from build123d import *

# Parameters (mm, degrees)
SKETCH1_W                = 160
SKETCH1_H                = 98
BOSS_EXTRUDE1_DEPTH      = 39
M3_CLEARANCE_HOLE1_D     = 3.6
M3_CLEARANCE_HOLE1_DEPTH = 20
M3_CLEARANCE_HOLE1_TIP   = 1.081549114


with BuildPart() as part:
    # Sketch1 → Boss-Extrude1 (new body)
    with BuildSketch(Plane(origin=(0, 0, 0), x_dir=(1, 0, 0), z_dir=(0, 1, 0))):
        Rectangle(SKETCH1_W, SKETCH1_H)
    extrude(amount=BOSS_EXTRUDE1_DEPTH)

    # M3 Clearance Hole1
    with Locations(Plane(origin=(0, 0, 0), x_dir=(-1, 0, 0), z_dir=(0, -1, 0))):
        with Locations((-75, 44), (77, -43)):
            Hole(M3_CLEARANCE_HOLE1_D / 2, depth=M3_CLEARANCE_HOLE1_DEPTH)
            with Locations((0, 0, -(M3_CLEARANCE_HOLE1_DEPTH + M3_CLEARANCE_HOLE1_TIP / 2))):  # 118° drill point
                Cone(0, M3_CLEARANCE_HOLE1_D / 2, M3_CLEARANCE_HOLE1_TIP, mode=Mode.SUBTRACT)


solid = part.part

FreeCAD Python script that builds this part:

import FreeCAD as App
import Part
import Sketcher

V = App.Vector

doc = App.newDocument("Part")
body = doc.addObject("PartDesign::Body", "Body")

# Sketch on XZ plane
sketch1 = body.newObject("Sketcher::SketchObject", "Sketch")
sketch1.AttachmentSupport = (doc.getObject("XZ_Plane"), [""])
sketch1.MapMode = "FlatFace"
sketch1.addGeometry([
    Part.LineSegment(V(-80, -49, 0), V(-80, 49, 0)),
    Part.LineSegment(V(-80, 49, 0), V(80, 49, 0)),
    Part.LineSegment(V(80, 49, 0), V(80, -49, 0)),
    Part.LineSegment(V(80, -49, 0), V(-80, -49, 0)),
], False)
sketch1.addConstraint([
    Sketcher.Constraint("Coincident", 0, 2, 1, 1),
    Sketcher.Constraint("Coincident", 1, 2, 2, 1),
    Sketcher.Constraint("Coincident", 2, 2, 3, 1),
    Sketcher.Constraint("Coincident", 3, 2, 0, 1),
    Sketcher.Constraint("Vertical", 0),
    Sketcher.Constraint("Horizontal", 1),
    Sketcher.Constraint("Vertical", 2),
    Sketcher.Constraint("Horizontal", 3),
    Sketcher.Constraint("Symmetric", 0, 2, 2, 2, -1, 1),
    Sketcher.Constraint("DistanceX", 1, 1, 1, 2, 160.0),
    Sketcher.Constraint("DistanceY", 0, 1, 0, 2, 98.0),
])
pad1 = body.newObject("PartDesign::Pad", "Pad")
pad1.Profile = sketch1
pad1.Length = 39
pad1.Reversed = True

# Sketch on XZ plane
sketch2 = body.newObject("Sketcher::SketchObject", "Sketch001")
sketch2.AttachmentSupport = (doc.getObject("XZ_Plane"), [""])
sketch2.MapMode = "FlatFace"
sketch2.addGeometry([
    Part.Circle(V(75, -44, 0), V(0, 0, 1), 1.8),
    Part.Circle(V(-77, 43, 0), V(0, 0, 1), 1.8),
], False)
sketch2.addConstraint([
    Sketcher.Constraint("Equal", 0, 1),
    Sketcher.Constraint("Diameter", 0, 3.6),
    Sketcher.Constraint("DistanceX", -1, 1, 0, 3, 75.0),
    Sketcher.Constraint("DistanceY", 0, 3, -1, 1, 44.0),
    Sketcher.Constraint("DistanceX", 1, 3, -1, 1, 77.0),
    Sketcher.Constraint("DistanceY", -1, 1, 1, 3, 43.0),
])
doc.recompute()
hole = body.newObject("PartDesign::Hole", "Hole")
hole.Profile = sketch2
hole.ThreadType = "None"
hole.Diameter = 3.6
hole.DepthType = "Dimension"
hole.Depth = 20
hole.DrillPoint = "Angled"
hole.DrillPointAngle = 118

doc.recompute()
